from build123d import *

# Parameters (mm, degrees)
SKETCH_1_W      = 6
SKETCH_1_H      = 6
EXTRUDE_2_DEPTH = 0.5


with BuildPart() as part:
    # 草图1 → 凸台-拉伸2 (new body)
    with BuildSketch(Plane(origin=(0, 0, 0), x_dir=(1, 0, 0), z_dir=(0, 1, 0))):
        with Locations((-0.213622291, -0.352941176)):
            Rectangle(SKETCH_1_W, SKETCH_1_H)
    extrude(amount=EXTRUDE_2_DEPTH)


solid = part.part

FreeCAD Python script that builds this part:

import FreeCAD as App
import Part
import Sketcher
from FreeCAD import Vector


def add_polygon(sketch, points):
    """Adds a closed chain of lines whose ends are joined by coincident constraints."""
    first, n = sketch.GeometryCount, len(points)
    for a, b in zip(points, points[1:] + points[:1]):
        sketch.addGeometry(Part.LineSegment(App.Vector(*a, 0), App.Vector(*b, 0)), False)
    for i in range(n):
        sketch.addConstraint(Sketcher.Constraint("Coincident", first + i, 2, first + (i + 1) % n, 1))

doc = App.newDocument("Part")
body = doc.addObject("PartDesign::Body", "Body")

# Sketch on XZ plane
sketch1 = body.newObject("Sketcher::SketchObject", "Sketch")
sketch1.AttachmentSupport = (doc.getObject("XZ_Plane"), [""])
sketch1.MapMode = "FlatFace"
add_polygon(sketch1, [(-3, -3), (-3, 3), (3, 3), (3, -3)])  # lines 0-3
sketch1.addConstraint([
    Sketcher.Constraint("Vertical", 0),
    Sketcher.Constraint("Horizontal", 1),
    Sketcher.Constraint("Vertical", 2),
    Sketcher.Constraint("Horizontal", 3),
    Sketcher.Constraint("Equal", 3, 0),
    Sketcher.Constraint("DistanceX", 1, 1, 1, 2, 6.0),
    Sketcher.Constraint("DistanceY", -1, 1, 0, 2, 3.352941),
    Sketcher.Constraint("DistanceX", 0, 2, -1, 1, 3.213622),
])
pad1 = body.newObject("PartDesign::Pad", "Pad")
pad1.Profile = sketch1
pad1.Length = 0.5
pad1.Reversed = True

doc.recompute()
